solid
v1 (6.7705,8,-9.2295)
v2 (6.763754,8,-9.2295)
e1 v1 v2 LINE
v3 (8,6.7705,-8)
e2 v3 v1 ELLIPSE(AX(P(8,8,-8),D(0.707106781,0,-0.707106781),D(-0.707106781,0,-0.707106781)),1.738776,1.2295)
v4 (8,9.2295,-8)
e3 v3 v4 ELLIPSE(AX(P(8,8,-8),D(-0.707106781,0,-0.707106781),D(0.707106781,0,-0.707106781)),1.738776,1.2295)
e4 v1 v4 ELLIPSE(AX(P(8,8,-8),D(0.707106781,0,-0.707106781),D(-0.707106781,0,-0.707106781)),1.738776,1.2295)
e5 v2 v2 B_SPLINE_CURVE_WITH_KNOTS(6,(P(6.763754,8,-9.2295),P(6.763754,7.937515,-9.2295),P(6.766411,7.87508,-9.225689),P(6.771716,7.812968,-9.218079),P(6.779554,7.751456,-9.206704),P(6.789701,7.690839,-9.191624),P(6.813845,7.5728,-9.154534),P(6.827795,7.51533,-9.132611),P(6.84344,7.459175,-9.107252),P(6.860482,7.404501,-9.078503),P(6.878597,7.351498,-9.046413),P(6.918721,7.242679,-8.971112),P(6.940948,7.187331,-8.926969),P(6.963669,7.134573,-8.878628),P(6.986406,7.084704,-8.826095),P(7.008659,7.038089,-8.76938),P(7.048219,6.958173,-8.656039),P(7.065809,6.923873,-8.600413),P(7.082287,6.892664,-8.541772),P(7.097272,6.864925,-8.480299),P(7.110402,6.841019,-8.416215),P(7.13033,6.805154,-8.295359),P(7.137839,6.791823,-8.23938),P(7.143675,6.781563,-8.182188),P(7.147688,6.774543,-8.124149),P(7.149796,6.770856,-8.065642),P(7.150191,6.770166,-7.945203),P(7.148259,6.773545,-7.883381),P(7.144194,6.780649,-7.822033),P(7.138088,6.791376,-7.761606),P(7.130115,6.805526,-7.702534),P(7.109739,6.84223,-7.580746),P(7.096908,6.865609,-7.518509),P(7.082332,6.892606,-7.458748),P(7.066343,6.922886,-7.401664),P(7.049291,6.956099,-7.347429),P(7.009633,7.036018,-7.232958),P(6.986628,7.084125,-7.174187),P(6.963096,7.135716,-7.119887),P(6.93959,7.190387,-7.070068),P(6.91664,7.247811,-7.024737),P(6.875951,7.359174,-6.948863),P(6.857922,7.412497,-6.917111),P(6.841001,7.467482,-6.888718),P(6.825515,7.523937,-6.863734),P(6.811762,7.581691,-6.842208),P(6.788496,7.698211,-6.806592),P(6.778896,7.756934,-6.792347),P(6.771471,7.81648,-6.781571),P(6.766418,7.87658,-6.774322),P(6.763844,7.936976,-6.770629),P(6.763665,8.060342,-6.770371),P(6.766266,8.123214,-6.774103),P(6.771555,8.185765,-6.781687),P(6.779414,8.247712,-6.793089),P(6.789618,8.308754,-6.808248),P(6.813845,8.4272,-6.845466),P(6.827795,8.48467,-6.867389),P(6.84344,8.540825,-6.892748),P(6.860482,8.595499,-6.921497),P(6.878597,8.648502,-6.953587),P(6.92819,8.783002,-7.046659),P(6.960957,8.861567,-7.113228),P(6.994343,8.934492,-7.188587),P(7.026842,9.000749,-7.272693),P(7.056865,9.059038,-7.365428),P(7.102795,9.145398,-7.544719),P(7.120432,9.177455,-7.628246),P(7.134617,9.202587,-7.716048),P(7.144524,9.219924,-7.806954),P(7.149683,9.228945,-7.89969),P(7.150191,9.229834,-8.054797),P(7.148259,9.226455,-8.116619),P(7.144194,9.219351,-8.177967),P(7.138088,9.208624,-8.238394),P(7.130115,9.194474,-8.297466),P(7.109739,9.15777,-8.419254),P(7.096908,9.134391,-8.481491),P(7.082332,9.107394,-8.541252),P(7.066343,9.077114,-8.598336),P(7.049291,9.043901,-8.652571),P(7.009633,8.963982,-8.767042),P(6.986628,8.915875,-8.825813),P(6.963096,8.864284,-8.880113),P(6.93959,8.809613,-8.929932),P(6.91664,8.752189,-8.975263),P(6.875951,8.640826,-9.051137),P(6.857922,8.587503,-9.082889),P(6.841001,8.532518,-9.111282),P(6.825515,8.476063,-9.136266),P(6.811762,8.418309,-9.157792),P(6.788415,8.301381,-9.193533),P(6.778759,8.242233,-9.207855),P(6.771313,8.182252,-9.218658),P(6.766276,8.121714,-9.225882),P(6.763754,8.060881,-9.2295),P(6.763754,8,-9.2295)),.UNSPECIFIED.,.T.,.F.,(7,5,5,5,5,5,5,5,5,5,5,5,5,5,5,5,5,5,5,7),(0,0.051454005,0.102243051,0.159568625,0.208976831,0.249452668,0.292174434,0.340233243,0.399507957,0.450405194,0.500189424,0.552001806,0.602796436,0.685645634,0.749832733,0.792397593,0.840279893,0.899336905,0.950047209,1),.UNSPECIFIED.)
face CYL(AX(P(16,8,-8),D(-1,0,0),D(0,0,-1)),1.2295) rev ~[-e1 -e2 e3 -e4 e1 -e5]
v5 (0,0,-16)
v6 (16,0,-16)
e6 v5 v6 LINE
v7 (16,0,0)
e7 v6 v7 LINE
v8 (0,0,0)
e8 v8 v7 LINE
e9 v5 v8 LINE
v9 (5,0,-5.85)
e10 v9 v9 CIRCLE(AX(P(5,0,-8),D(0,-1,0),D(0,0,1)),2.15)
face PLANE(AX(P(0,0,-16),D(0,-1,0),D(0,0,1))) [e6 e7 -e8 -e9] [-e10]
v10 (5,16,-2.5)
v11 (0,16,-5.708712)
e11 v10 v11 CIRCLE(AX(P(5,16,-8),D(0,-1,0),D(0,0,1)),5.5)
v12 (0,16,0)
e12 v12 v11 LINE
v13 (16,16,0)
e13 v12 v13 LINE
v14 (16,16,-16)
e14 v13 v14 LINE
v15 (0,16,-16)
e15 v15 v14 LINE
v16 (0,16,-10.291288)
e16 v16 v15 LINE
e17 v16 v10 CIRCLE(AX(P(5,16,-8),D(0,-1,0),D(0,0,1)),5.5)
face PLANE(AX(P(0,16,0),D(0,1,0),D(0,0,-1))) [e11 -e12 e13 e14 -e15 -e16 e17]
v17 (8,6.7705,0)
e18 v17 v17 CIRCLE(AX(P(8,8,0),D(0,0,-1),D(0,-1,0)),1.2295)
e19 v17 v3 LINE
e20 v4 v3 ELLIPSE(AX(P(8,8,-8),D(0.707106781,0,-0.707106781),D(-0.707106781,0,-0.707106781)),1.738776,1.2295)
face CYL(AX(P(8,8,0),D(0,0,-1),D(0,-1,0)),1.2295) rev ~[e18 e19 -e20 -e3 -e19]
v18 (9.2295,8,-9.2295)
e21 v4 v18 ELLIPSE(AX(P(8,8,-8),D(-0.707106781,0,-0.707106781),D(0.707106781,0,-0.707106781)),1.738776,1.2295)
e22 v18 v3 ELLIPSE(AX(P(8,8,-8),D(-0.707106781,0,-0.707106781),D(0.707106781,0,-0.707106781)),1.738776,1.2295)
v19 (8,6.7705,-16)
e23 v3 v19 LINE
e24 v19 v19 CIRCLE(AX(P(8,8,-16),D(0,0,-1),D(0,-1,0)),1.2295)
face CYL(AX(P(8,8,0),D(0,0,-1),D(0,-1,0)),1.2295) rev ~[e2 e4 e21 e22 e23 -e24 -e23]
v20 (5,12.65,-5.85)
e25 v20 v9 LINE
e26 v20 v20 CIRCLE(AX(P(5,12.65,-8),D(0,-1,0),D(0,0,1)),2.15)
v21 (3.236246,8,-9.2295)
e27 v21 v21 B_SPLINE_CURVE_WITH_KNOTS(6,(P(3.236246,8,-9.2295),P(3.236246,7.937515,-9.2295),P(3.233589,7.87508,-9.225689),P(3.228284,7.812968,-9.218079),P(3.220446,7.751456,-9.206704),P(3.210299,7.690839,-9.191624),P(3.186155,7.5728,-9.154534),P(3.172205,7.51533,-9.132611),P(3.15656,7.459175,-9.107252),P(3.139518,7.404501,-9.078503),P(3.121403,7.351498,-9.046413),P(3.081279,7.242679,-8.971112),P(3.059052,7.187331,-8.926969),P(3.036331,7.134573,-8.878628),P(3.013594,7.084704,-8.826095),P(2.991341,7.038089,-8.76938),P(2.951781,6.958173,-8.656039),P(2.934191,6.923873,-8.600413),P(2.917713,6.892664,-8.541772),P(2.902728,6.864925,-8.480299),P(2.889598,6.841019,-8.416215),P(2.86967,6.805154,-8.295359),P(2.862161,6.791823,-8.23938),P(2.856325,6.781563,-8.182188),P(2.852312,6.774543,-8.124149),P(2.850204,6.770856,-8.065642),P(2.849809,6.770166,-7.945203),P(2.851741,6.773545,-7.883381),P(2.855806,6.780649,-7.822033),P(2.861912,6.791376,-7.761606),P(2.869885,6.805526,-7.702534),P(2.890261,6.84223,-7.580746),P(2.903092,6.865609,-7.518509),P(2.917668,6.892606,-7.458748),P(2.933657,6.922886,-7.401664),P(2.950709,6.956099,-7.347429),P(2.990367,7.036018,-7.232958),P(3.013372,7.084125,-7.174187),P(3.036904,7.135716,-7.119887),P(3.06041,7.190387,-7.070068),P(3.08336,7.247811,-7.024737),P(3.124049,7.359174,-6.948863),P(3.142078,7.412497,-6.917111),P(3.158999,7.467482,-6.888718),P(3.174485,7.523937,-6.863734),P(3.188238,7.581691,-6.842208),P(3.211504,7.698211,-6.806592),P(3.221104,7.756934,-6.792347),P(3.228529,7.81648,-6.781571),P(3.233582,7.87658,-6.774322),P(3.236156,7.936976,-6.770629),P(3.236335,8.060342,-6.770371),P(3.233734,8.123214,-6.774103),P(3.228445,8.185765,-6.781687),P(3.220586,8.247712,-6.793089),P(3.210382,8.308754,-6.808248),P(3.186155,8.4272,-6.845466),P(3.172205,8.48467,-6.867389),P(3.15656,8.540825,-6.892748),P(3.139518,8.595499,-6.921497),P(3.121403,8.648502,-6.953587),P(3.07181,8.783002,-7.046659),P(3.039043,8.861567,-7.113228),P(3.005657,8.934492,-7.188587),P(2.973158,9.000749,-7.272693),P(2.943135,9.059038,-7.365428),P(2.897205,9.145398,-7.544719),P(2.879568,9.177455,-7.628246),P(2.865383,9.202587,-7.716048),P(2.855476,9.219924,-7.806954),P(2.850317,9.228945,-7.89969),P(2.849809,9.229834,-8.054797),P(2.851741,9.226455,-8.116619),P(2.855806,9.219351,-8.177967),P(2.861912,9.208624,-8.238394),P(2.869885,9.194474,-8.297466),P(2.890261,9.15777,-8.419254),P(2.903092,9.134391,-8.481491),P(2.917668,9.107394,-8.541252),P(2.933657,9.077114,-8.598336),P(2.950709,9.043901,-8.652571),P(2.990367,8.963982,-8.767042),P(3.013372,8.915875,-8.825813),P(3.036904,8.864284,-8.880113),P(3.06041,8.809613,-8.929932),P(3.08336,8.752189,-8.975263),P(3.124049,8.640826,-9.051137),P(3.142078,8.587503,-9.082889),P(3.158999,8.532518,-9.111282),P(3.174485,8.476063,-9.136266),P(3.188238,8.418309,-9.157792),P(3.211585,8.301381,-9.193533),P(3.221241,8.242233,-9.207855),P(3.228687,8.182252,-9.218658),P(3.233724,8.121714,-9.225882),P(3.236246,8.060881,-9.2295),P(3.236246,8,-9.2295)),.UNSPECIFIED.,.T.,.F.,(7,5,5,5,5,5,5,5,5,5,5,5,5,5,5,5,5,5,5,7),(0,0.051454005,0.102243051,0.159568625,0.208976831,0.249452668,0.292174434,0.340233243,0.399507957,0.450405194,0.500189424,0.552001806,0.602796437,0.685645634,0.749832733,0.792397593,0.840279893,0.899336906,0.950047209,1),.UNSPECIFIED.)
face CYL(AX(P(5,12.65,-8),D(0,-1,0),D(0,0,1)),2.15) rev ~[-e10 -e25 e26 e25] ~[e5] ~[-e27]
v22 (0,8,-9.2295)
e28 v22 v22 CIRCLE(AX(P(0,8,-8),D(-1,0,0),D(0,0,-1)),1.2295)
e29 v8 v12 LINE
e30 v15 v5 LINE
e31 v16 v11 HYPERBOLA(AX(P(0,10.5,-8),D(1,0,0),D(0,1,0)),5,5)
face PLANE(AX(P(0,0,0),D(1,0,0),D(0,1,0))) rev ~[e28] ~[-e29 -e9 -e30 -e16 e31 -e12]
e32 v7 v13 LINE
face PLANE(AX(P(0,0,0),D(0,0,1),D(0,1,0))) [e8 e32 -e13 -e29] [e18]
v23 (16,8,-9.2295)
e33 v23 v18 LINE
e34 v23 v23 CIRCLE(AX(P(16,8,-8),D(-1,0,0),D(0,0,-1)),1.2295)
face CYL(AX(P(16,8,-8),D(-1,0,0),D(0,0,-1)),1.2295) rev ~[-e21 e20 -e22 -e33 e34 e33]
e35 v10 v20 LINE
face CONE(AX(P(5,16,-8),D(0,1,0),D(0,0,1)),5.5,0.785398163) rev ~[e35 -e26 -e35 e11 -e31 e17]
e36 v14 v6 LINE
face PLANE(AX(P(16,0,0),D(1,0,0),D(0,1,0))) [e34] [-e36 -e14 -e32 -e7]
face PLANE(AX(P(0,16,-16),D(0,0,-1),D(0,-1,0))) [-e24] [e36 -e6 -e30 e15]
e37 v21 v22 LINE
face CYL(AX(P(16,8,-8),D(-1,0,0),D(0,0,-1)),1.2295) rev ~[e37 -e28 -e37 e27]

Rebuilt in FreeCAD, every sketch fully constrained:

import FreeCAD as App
import Part
import Sketcher
from FreeCAD import Vector


def add_polygon(sketch, points):
    """Adds a closed chain of lines whose ends are joined by coincident constraints."""
    first, n = sketch.GeometryCount, len(points)
    for a, b in zip(points, points[1:] + points[:1]):
        sketch.addGeometry(Part.LineSegment(App.Vector(*a, 0), App.Vector(*b, 0)), False)
    for i in range(n):
        sketch.addConstraint(Sketcher.Constraint("Coincident", first + i, 2, first + (i + 1) % n, 1))

doc = App.newDocument("Part")
params = doc.addObject("Spreadsheet::Sheet", "Params")
for row, (alias, value) in enumerate([
    ("sketch1_width", "16 mm"),
    ("pad1_length", "16 mm"),
    ("sketch2_diameter", "4.3 mm"),
    ("hole_diameter", "4.3 mm"),
    ("hole_csink_diameter", "11 mm"),
    ("hole2_diameter", "2.459 mm"),
    ("hole3_diameter", "2.459 mm"),
], start=1):
    params.set(f"A{row}", alias)
    params.set(f"B{row}", "=" + value)
    params.setAlias(f"B{row}", alias)

body = doc.addObject("PartDesign::Body", "Body")

sketch1 = body.newObject("Sketcher::SketchObject", "Sketch")
sketch1.AttachmentSupport = (doc.getObject("YZ_Plane"), [""])
sketch1.MapMode = "FlatFace"
add_polygon(sketch1, [(16, 0), (0, 0), (0, -16), (16, -16)])
sketch1.addConstraint([
    Sketcher.Constraint("Horizontal", 0),
    Sketcher.Constraint("Vertical", 1),
    Sketcher.Constraint("Horizontal", 2),
    Sketcher.Constraint("Vertical", 3),
    Sketcher.Constraint("Coincident", 0, 2, -1, 1),
    Sketcher.Constraint("Equal", 2, 1),
    Sketcher.Constraint("DistanceX", 0, 2, 0, 1, 16.0),
])
sketch1.setExpression("Constraints[10]", "Params.sketch1_width")
pad1 = body.newObject("PartDesign::Pad", "Pad")
pad1.Profile = sketch1
pad1.setExpression("Length", "Params.pad1_length")

sketch2 = body.newObject("Sketcher::SketchObject", "Sketch001")
sketch2.AttachmentSupport = (doc.getObject("XZ_Plane"), [""])
sketch2.MapMode = "FlatFace"
sketch2.AttachmentOffset = App.Placement(Vector(0, 0, -16), App.Rotation())
sketch2.addGeometry(Part.Circle(Vector(5, -8, 0), Vector(0, 0, 1), 2.1), False)
sketch2.addConstraint([
    Sketcher.Constraint("Diameter", 0, 4.3),
    Sketcher.Constraint("DistanceX", -1, 1, 0, 3, 5.0),
    Sketcher.Constraint("DistanceY", 0, 3, -1, 1, 8.0),
])
sketch2.setExpression("Constraints[0]", "Params.sketch2_diameter")
doc.recompute()
hole = body.newObject("PartDesign::Hole", "Hole")
hole.Profile = sketch2
hole.ThreadType = "None"
hole.setExpression("Diameter", "Params.hole_diameter")
hole.DepthType = "ThroughAll"
hole.HoleCutType = "Countersink"
hole.setExpression("HoleCutDiameter", "Params.hole_csink_diameter")
hole.HoleCutCountersinkAngle = 90
hole.Reversed = True

sketch3 = body.newObject("Sketcher::SketchObject", "Sketch002")
sketch3.AttachmentSupport = (doc.getObject("XY_Plane"), [""])
sketch3.MapMode = "FlatFace"
sketch3.addGeometry(Part.Circle(Vector(8, 8, 0), Vector(0, 0, 1), 1.2), False)
sketch3.addConstraint([
    Sketcher.Constraint("Diameter", 0, 2.459),
    Sketcher.Constraint("DistanceX", -1, 1, 0, 3, 8.0),
    Sketcher.Constraint("DistanceY", -1, 1, 0, 3, 8.0),
])
doc.recompute()
hole2 = body.newObject("PartDesign::Hole", "Hole001")
hole2.Profile = sketch3
hole2.ThreadType = "None"
hole2.setExpression("Diameter", "Params.hole2_diameter")
hole2.DepthType = "ThroughAll"

sketch4 = body.newObject("Sketcher::SketchObject", "Sketch003")
sketch4.AttachmentSupport = (doc.getObject("YZ_Plane"), [""])
sketch4.MapMode = "FlatFace"
sketch4.AttachmentOffset = App.Placement(Vector(0, 0, 16), App.Rotation())
sketch4.addGeometry(Part.Circle(Vector(8, -8, 0), Vector(0, 0, 1), 1.2), False)
sketch4.addConstraint([
    Sketcher.Constraint("Diameter", 0, 2.459),
    Sketcher.Constraint("DistanceX", -1, 1, 0, 3, 8.0),
    Sketcher.Constraint("DistanceY", 0, 3, -1, 1, 8.0),
])
doc.recompute()
hole3 = body.newObject("PartDesign::Hole", "Hole002")
hole3.Profile = sketch4
hole3.ThreadType = "None"
hole3.setExpression("Diameter", "Params.hole3_diameter")
hole3.DepthType = "ThroughAll"

doc.recompute()
